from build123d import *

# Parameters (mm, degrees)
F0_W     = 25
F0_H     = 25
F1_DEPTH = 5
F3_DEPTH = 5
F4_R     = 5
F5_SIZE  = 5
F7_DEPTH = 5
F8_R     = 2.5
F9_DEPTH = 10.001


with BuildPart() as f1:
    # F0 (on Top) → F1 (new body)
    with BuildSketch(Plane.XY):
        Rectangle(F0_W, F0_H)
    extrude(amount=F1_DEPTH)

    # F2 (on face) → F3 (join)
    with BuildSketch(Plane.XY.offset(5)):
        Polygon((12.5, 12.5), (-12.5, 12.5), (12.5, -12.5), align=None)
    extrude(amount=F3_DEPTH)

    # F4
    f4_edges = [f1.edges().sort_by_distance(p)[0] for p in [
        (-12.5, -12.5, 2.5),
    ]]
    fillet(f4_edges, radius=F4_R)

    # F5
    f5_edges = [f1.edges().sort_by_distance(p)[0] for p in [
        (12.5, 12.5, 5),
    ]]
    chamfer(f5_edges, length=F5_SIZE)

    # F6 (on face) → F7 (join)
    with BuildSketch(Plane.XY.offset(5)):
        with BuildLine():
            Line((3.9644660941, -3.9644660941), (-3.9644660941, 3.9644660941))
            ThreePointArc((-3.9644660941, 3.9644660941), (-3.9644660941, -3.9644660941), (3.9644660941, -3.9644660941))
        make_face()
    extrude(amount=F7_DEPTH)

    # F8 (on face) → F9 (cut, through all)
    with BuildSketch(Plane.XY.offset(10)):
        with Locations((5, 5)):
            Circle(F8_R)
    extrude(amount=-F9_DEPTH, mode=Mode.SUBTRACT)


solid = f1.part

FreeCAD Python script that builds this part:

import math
import FreeCAD as App
import Part
import Sketcher
from FreeCAD import Vector
Q = App.Units.Quantity


def edges_at(feature, points):
    """Names of the edges that pass closest to the given points."""
    edges = feature.Shape.Edges
    near = lambda p: min(range(len(edges)), key=lambda i: edges[i].distToShape(Part.Vertex(*p))[0])
    return sorted({f"Edge{near(p) + 1}" for p in points})

doc = App.newDocument("Part")
params = doc.addObject("Spreadsheet::Sheet", "Params")
for row, (alias, value) in enumerate([
    ("sketch1_width", "25 mm"),
    ("pad1_length", "5 mm"),
    ("sketch2_width", "25 mm"),
    ("pad2_length", "5 mm"),
    ("fillet_radius", "5 mm"),
    ("chamfer_size", "5 mm"),
    ("pad3_length", "5 mm"),
    ("sketch4_diameter", "5 mm"),
], start=1):
    params.set(f"A{row}", alias)
    params.set(f"B{row}", "=" + value)
    params.setAlias(f"B{row}", alias)

body = doc.addObject("PartDesign::Body", "Body")

sketch1 = body.newObject("Sketcher::SketchObject", "Sketch")
sketch1.AttachmentSupport = (doc.getObject("XY_Plane"), [""])
sketch1.MapMode = "FlatFace"
sketch1.addGeometry(Part.LineSegment(Vector(-12.5, 12.5, 0), Vector(-12.5, -12.5, 0)), False)
sketch1.addGeometry(Part.LineSegment(Vector(-12.5, -12.5, 0), Vector(12.5, -12.5, 0)), False)
sketch1.addGeometry(Part.LineSegment(Vector(12.5, -12.5, 0), Vector(12.5, 12.5, 0)), False)
sketch1.addGeometry(Part.LineSegment(Vector(12.5, 12.5, 0), Vector(-12.5, 12.5, 0)), False)
sketch1.addConstraint(Sketcher.Constraint("Coincident", 0, 2, 1, 1))
sketch1.addConstraint(Sketcher.Constraint("Coincident", 1, 2, 2, 1))
sketch1.addConstraint(Sketcher.Constraint("Coincident", 2, 2, 3, 1))
sketch1.addConstraint(Sketcher.Constraint("Coincident", 3, 2, 0, 1))
sketch1.addConstraint(Sketcher.Constraint("Vertical", 0))
sketch1.addConstraint(Sketcher.Constraint("Horizontal", 1))
sketch1.addConstraint(Sketcher.Constraint("Vertical", 2))
sketch1.addConstraint(Sketcher.Constraint("Horizontal", 3))
sketch1.addConstraint(Sketcher.Constraint("Symmetric", 0, 2, 2, 2, -1, 1))
sketch1.addConstraint(Sketcher.Constraint("Equal", 3, 0))
sketch1.addConstraint(Sketcher.Constraint("DistanceX", 1, 1, 1, 2, Q("25 mm")))
sketch1.setExpression("Constraints[10]", "Params.sketch1_width")
pad1 = body.newObject("PartDesign::Pad", "Pad")
pad1.Profile = sketch1
pad1.setExpression("Length", "Params.pad1_length")

sketch2 = body.newObject("Sketcher::SketchObject", "Sketch001")
sketch2.AttachmentSupport = (doc.getObject("XY_Plane"), [""])
sketch2.MapMode = "FlatFace"
sketch2.AttachmentOffset = App.Placement(Vector(0, 0, 5), App.Rotation())
sketch2.addGeometry(Part.LineSegment(Vector(12.5, 12.5, 0), Vector(-12.5, 12.5, 0)), False)
sketch2.addGeometry(Part.LineSegment(Vector(-12.5, 12.5, 0), Vector(12.5, -12.5, 0)), False)
sketch2.addGeometry(Part.LineSegment(Vector(12.5, -12.5, 0), Vector(12.5, 12.5, 0)), False)
sketch2.addConstraint(Sketcher.Constraint("Coincident", 0, 2, 1, 1))
sketch2.addConstraint(Sketcher.Constraint("Coincident", 1, 2, 2, 1))
sketch2.addConstraint(Sketcher.Constraint("Coincident", 2, 2, 0, 1))
sketch2.addConstraint(Sketcher.Constraint("Horizontal", 0))
sketch2.addConstraint(Sketcher.Constraint("Vertical", 2))
sketch2.addConstraint(Sketcher.Constraint("Symmetric", 0, 2, 1, 2, -1, 1))
sketch2.addConstraint(Sketcher.Constraint("Equal", 0, 2))
sketch2.addConstraint(Sketcher.Constraint("DistanceX", 0, 2, 0, 1, Q("25 mm")))
sketch2.setExpression("Constraints[7]", "Params.sketch2_width")
pad2 = body.newObject("PartDesign::Pad", "Pad001")
pad2.Profile = sketch2
pad2.setExpression("Length", "Params.pad2_length")
doc.recompute()

fillet = body.newObject("PartDesign::Fillet", "Fillet")
fillet.Base = (pad2, edges_at(pad2, [(-12.5, -12.5, 2.5)]))
fillet.setExpression("Radius", "Params.fillet_radius")
doc.recompute()

chamfer = body.newObject("PartDesign::Chamfer", "Chamfer")
chamfer.Base = (fillet, edges_at(fillet, [(12.5, 12.5, 5)]))
chamfer.setExpression("Size", "Params.chamfer_size")

sketch3 = body.newObject("Sketcher::SketchObject", "Sketch002")
sketch3.AttachmentSupport = (doc.getObject("XY_Plane"), [""])
sketch3.MapMode = "FlatFace"
sketch3.AttachmentOffset = App.Placement(Vector(0, 0, 5), App.Rotation())
sketch3.addGeometry(Part.LineSegment(Vector(3.964466, -3.964466, 0), Vector(-3.964466, 3.964466, 0)), False)
sketch3.addGeometry(Part.ArcOfCircle(Part.Circle(Vector(0, 0, 0), Vector(0, 0, 1), 5.606602), math.radians(135), math.radians(315)), False)
sketch3.addConstraint(Sketcher.Constraint("Coincident", 0, 1, 1, 2))
sketch3.addConstraint(Sketcher.Constraint("Coincident", 1, 1, 0, 2))
sketch3.addConstraint(Sketcher.Constraint("Coincident", 1, 3, -1, 1))
sketch3.addConstraint(Sketcher.Constraint("Angle", 0, Q("135 deg")))
sketch3.addConstraint(Sketcher.Constraint("Radius", 1, Q("5.606602 mm")))
sketch3.addConstraint(Sketcher.Constraint("DistanceX", -1, 1, 0, 1, Q("3.964466 mm")))
pad3 = body.newObject("PartDesign::Pad", "Pad002")
pad3.Profile = sketch3
pad3.setExpression("Length", "Params.pad3_length")

sketch4 = body.newObject("Sketcher::SketchObject", "Sketch003")
sketch4.AttachmentSupport = (doc.getObject("XY_Plane"), [""])
sketch4.MapMode = "FlatFace"
sketch4.AttachmentOffset = App.Placement(Vector(0, 0, 10), App.Rotation())
sketch4.addGeometry(Part.Circle(Vector(5, 5, 0), Vector(0, 0, 1), 2.5), False)
sketch4.addConstraint(Sketcher.Constraint("Diameter", 0, Q("5 mm")))
sketch4.addConstraint(Sketcher.Constraint("DistanceX", -1, 1, 0, 3, Q("5 mm")))
sketch4.addConstraint(Sketcher.Constraint("DistanceY", -1, 1, 0, 3, Q("5 mm")))
sketch4.setExpression("Constraints[0]", "Params.sketch4_diameter")
pocket1 = body.newObject("PartDesign::Pocket", "Pocket")
pocket1.Profile = sketch4
pocket1.Type = "ThroughAll"

doc.recompute()
